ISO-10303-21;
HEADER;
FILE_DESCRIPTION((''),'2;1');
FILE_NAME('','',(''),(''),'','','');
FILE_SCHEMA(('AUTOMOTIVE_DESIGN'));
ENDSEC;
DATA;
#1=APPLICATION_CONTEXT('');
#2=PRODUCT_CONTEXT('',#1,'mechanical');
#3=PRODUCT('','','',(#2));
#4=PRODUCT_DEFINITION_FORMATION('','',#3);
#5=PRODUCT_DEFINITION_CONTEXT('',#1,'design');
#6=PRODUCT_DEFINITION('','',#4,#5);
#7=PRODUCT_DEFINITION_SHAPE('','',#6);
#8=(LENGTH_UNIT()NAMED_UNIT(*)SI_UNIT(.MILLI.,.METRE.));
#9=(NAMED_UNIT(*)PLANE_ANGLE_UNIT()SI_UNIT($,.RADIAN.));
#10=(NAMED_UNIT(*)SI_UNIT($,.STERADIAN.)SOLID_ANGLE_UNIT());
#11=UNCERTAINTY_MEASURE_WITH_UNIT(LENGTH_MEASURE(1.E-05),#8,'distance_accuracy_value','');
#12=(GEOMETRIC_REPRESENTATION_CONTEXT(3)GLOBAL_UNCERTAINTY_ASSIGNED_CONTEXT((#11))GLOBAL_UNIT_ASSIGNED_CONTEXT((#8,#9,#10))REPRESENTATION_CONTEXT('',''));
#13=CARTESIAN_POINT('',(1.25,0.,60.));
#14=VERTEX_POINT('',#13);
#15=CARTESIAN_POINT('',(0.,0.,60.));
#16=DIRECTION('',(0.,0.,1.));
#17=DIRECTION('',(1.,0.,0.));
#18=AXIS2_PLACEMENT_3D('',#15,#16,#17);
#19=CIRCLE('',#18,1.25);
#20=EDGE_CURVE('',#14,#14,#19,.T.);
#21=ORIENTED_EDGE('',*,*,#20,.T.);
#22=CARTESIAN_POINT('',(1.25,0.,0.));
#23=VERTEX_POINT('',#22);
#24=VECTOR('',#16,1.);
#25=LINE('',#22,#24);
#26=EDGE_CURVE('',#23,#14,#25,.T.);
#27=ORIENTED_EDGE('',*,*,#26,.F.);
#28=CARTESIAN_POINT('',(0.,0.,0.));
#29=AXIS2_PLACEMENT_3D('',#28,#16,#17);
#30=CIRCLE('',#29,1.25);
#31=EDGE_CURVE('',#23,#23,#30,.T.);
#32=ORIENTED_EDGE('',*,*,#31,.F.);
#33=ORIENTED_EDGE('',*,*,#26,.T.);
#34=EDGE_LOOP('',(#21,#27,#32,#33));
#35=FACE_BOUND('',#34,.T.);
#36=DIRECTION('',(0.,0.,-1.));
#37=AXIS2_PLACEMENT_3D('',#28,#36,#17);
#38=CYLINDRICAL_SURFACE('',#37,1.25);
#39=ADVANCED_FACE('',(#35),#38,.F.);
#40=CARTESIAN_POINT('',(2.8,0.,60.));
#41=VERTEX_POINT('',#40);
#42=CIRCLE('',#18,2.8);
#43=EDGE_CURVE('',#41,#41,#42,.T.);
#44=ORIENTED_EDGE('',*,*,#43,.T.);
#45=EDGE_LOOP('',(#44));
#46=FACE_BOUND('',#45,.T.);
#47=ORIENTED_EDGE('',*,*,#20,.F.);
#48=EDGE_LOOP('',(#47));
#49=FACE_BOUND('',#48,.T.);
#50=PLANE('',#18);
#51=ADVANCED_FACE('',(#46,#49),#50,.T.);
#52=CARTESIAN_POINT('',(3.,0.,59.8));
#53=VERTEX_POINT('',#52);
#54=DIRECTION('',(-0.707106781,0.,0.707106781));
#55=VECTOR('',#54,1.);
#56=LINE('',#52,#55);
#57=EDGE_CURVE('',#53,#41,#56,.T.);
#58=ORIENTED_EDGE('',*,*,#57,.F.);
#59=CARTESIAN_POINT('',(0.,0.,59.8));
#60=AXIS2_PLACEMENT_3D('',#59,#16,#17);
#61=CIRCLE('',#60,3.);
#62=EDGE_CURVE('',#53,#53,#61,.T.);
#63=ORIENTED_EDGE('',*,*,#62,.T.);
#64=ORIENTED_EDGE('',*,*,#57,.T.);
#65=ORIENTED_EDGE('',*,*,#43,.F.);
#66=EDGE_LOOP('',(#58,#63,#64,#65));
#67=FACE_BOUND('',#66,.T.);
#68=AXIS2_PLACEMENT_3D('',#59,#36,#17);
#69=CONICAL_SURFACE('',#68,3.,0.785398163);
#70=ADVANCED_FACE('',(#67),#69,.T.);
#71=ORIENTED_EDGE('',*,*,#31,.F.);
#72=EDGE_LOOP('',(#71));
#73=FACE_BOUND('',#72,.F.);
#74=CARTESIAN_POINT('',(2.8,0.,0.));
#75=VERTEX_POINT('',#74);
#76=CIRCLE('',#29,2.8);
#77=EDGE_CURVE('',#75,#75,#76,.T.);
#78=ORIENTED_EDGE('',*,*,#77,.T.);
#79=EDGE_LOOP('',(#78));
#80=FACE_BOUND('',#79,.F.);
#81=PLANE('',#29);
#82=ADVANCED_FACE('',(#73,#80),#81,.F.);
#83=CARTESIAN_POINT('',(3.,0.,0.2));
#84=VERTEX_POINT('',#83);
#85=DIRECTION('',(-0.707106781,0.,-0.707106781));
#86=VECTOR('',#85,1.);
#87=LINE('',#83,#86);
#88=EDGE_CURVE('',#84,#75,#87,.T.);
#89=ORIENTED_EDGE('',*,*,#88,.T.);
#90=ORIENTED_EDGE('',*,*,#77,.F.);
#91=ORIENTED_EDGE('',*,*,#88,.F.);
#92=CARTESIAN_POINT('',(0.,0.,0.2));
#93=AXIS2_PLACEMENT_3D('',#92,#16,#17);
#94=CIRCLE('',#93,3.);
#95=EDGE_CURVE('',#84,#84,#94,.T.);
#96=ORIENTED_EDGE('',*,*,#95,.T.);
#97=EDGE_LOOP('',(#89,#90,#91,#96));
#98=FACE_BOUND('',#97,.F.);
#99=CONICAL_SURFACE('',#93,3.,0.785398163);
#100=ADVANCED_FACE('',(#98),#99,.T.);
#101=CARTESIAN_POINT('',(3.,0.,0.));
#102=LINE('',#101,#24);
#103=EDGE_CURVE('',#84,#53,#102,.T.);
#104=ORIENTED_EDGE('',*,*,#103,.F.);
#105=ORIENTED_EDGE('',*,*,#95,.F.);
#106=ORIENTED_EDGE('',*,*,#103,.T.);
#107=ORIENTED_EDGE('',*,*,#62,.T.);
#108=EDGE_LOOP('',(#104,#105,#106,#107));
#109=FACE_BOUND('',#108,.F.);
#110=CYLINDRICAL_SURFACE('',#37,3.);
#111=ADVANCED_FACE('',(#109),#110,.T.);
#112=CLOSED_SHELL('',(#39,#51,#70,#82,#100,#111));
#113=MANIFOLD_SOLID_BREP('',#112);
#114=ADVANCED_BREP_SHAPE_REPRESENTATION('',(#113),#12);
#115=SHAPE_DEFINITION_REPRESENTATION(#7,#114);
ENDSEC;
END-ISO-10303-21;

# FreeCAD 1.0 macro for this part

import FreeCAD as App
import Part
import Sketcher

V = App.Vector
Q = App.Units.Quantity


def edges_at(feature, points):
    """Names of the edges that pass closest to the given points."""
    edges = feature.Shape.Edges
    near = lambda p: min(range(len(edges)), key=lambda i: edges[i].distToShape(Part.Vertex(*p))[0])
    return sorted({f"Edge{near(p) + 1}" for p in points})

doc = App.newDocument("Part")
body = doc.addObject("PartDesign::Body", "Body")

# Sketch on XY plane
sketch1 = body.newObject("Sketcher::SketchObject", "Sketch")
sketch1.AttachmentSupport = (doc.getObject("XY_Plane"), [""])
sketch1.MapMode = "FlatFace"
sketch1.addGeometry([
    Part.Circle(V(0, 0, 0), V(0, 0, 1), 3),
    Part.Circle(V(0, 0, 0), V(0, 0, 1), 1.25),
], False)
sketch1.addConstraint([
    Sketcher.Constraint("Coincident", 0, 3, -1, 1),
    Sketcher.Constraint("Coincident", 1, 3, -1, 1),
    Sketcher.Constraint("Diameter", 0, Q("6 mm")),
    Sketcher.Constraint("Diameter", 1, Q("2.5 mm")),
])
pad1 = body.newObject("PartDesign::Pad", "Pad")
pad1.Profile = sketch1
pad1.Length = 60
doc.recompute()

chamfer = body.newObject("PartDesign::Chamfer", "Chamfer")
chamfer.Base = (pad1, edges_at(pad1, [(-3, 0, 0), (-3, 0, 60)]))
chamfer.Size = 0.2

doc.recompute()
